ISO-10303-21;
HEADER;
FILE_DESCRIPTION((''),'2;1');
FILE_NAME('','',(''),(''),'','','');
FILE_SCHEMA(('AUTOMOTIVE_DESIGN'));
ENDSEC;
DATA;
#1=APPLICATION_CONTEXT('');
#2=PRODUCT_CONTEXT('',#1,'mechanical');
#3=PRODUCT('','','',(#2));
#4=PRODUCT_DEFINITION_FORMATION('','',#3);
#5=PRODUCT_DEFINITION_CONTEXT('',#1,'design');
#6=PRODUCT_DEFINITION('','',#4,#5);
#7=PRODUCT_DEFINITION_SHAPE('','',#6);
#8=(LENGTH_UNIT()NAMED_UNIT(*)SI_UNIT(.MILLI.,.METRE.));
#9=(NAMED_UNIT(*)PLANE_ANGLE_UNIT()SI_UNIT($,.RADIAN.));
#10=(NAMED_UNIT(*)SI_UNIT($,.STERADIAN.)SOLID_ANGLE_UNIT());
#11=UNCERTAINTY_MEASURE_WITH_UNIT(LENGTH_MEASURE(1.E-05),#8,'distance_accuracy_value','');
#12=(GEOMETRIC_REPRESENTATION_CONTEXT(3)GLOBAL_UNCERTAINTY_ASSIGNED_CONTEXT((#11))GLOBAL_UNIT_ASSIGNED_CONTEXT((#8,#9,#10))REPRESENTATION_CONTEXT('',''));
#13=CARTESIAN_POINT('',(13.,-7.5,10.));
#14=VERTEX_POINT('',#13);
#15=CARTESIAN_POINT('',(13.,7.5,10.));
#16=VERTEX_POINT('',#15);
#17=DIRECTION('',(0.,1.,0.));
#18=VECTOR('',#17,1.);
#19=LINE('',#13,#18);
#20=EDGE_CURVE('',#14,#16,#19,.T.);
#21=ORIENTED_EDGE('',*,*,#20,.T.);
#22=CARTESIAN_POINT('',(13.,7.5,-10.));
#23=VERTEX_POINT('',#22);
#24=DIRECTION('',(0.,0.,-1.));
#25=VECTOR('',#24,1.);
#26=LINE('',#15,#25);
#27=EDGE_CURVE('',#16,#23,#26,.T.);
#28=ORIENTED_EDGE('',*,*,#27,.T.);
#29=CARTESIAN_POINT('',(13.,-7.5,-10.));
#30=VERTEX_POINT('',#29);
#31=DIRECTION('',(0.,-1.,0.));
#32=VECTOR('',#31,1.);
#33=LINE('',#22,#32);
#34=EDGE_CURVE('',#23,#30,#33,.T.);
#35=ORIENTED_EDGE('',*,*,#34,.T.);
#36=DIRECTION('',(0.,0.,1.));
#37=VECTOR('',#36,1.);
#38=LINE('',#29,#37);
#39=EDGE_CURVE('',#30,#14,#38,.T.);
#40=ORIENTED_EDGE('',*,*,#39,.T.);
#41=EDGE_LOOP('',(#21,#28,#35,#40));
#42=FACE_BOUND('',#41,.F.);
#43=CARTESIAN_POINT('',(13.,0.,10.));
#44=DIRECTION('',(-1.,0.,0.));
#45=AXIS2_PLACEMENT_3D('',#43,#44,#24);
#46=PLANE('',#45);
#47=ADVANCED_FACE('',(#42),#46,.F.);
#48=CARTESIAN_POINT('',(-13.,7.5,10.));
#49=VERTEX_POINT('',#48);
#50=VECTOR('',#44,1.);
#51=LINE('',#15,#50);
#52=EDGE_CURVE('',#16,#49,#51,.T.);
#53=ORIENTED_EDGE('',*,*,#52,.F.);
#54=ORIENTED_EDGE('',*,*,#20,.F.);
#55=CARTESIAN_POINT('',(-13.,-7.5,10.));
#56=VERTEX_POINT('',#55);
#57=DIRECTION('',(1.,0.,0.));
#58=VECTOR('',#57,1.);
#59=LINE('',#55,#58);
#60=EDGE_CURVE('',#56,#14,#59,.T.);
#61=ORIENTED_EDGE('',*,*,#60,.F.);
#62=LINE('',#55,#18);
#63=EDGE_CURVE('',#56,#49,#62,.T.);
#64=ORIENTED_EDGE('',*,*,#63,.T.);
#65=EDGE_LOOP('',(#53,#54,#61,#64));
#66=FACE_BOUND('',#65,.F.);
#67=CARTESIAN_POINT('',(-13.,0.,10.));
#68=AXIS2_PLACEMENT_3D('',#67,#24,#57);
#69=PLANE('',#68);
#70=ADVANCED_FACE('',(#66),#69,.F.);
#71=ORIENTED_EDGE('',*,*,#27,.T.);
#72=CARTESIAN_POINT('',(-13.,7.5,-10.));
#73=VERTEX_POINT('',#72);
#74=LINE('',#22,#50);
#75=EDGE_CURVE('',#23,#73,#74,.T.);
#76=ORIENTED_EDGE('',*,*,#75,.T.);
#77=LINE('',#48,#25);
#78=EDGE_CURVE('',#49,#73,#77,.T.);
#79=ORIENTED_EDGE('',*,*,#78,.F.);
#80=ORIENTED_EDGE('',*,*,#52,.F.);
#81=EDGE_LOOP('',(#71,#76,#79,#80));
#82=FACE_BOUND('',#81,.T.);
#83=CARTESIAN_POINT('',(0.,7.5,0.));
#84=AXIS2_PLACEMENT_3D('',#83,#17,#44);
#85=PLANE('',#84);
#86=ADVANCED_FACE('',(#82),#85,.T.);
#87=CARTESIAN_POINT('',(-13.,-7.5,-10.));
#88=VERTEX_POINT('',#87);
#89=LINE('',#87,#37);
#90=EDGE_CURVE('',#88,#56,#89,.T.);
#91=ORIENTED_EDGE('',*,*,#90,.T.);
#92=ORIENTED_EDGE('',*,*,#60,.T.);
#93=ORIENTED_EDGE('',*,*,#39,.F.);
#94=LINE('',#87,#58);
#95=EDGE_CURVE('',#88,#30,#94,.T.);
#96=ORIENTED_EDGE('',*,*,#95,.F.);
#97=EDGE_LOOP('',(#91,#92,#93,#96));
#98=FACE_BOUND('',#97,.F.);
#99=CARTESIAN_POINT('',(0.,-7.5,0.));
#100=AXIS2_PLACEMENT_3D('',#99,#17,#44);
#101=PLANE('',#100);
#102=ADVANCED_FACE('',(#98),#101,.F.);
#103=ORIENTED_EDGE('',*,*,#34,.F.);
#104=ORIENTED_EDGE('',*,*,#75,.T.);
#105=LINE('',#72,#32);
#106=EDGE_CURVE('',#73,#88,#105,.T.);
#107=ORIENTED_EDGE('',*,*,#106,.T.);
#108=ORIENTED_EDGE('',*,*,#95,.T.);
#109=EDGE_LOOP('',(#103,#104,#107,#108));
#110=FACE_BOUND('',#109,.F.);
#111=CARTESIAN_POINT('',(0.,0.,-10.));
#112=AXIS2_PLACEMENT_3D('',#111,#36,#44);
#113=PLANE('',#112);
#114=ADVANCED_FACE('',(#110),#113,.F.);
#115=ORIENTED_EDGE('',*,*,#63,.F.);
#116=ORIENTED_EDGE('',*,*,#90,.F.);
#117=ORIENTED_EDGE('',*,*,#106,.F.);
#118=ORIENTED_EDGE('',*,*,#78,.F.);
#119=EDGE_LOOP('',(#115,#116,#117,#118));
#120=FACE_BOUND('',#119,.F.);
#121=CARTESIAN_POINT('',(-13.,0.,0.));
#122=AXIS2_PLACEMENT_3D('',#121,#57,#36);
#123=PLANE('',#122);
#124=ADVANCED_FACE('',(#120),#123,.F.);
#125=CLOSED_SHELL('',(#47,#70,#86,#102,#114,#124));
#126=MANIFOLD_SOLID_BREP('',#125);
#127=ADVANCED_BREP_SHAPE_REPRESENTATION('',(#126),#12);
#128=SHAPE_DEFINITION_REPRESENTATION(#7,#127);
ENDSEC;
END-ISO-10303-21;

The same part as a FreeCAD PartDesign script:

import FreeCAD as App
import Part
import Sketcher
from FreeCAD import Vector


def add_polygon(sketch, points):
    """Adds a closed chain of lines whose ends are joined by coincident constraints."""
    first, n = sketch.GeometryCount, len(points)
    for a, b in zip(points, points[1:] + points[:1]):
        sketch.addGeometry(Part.LineSegment(App.Vector(*a, 0), App.Vector(*b, 0)), False)
    for i in range(n):
        sketch.addConstraint(Sketcher.Constraint("Coincident", first + i, 2, first + (i + 1) % n, 1))

doc = App.newDocument("Part")
params = doc.addObject("Spreadsheet::Sheet", "Params")
for row, (alias, value) in enumerate([
    ("sketch1_width", "26 mm"),
    ("sketch1_height", "20 mm"),
    ("pad1_length", "15 mm"),
], start=1):
    params.set(f"A{row}", alias)
    params.set(f"B{row}", "=" + value)
    params.setAlias(f"B{row}", alias)

body = doc.addObject("PartDesign::Body", "Body")

# Sketch on XZ plane
sketch1 = body.newObject("Sketcher::SketchObject", "Sketch")
sketch1.AttachmentSupport = (doc.getObject("XZ_Plane"), [""])
sketch1.MapMode = "FlatFace"
add_polygon(sketch1, [(-13, 10), (13, 10), (13, -10), (-13, -10)])  # lines 0-3
sketch1.addConstraint(Sketcher.Constraint("Horizontal", 0))
sketch1.addConstraint(Sketcher.Constraint("Vertical", 1))
sketch1.addConstraint(Sketcher.Constraint("Horizontal", 2))
sketch1.addConstraint(Sketcher.Constraint("Vertical", 3))
sketch1.addConstraint(Sketcher.Constraint("Symmetric", 0, 2, 2, 2, -1, 1))
sketch1.addConstraint(Sketcher.Constraint("DistanceX", 0, 1, 0, 2, 26.0))
sketch1.addConstraint(Sketcher.Constraint("DistanceY", 1, 2, 1, 1, 20.0))
sketch1.setExpression("Constraints[9]", "Params.sketch1_width")
sketch1.setExpression("Constraints[10]", "Params.sketch1_height")
pad1 = body.newObject("PartDesign::Pad", "Pad")
pad1.Profile = sketch1
pad1.setExpression("Length", "Params.pad1_length")
pad1.Midplane = True

doc.recompute()
